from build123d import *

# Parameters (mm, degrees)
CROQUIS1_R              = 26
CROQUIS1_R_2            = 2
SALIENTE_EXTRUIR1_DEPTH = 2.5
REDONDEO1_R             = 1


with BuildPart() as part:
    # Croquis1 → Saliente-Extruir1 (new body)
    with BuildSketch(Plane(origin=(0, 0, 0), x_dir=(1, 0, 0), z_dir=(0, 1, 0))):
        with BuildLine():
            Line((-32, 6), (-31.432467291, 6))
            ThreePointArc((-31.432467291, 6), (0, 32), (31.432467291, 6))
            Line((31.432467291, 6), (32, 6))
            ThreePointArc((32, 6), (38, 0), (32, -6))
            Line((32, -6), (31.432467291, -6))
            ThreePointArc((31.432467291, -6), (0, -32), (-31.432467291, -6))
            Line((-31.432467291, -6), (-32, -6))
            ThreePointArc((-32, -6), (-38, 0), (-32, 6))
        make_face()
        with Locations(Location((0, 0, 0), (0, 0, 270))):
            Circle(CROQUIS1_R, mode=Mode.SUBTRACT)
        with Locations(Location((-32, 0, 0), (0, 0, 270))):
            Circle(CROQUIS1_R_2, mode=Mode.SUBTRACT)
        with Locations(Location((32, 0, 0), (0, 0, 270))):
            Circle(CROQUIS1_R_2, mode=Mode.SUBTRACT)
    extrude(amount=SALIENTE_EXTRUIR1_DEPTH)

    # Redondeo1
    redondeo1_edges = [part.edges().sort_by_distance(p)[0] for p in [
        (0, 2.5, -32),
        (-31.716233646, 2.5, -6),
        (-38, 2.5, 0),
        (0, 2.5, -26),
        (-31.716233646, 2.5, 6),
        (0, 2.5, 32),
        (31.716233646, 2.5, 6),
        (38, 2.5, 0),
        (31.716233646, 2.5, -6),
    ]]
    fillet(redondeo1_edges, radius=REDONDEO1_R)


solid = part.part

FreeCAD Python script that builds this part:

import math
import FreeCAD as App
import Part
import Sketcher

V = App.Vector


def edges_at(feature, points):
    """Names of the edges that pass closest to the given points."""
    edges = feature.Shape.Edges
    near = lambda p: min(range(len(edges)), key=lambda i: edges[i].distToShape(Part.Vertex(*p))[0])
    return sorted({f"Edge{near(p) + 1}" for p in points})

doc = App.newDocument("Part")
body = doc.addObject("PartDesign::Body", "Body")

sketch1 = body.newObject("Sketcher::SketchObject", "Sketch")
sketch1.AttachmentSupport = (doc.getObject("XZ_Plane"), [""])
sketch1.MapMode = "FlatFace"
sketch1.addGeometry(Part.LineSegment(V(-31.4, -6, 0), V(-32, -6, 0)), False)
sketch1.addGeometry(Part.ArcOfCircle(Part.Circle(V(-32, 0, 0), V(0, 0, 1), 6), math.radians(90), math.radians(270)), False)
sketch1.addGeometry(Part.LineSegment(V(-32, 6, 0), V(-31.4, 6, 0)), False)
sketch1.addGeometry(Part.ArcOfCircle(Part.Circle(V(0, 0, 0), V(0, 0, 1), 32), math.radians(11), math.radians(169)), False)
sketch1.addGeometry(Part.LineSegment(V(31.4, 6, 0), V(32, 6, 0)), False)
sketch1.addGeometry(Part.ArcOfCircle(Part.Circle(V(32, 0, 0), V(0, 0, 1), 6), math.radians(-90), math.radians(90)), False)
sketch1.addGeometry(Part.LineSegment(V(32, -6, 0), V(31.4, -6, 0)), False)
sketch1.addGeometry(Part.ArcOfCircle(Part.Circle(V(0, 0, 0), V(0, 0, 1), 32), math.radians(-169), math.radians(-11)), False)
sketch1.addGeometry(Part.Circle(V(32, 0, 0), V(0, 0, 1), 2), False)
sketch1.addGeometry(Part.Circle(V(0, 0, 0), V(0, 0, 1), 26), False)
sketch1.addGeometry(Part.Circle(V(-32, 0, 0), V(0, 0, 1), 2), False)
sketch1.addConstraint(Sketcher.Constraint("Tangent", 0, 2, 1, 2))
sketch1.addConstraint(Sketcher.Constraint("Tangent", 1, 1, 2, 1))
sketch1.addConstraint(Sketcher.Constraint("Coincident", 2, 2, 3, 2))
sketch1.addConstraint(Sketcher.Constraint("Coincident", 3, 1, 4, 1))
sketch1.addConstraint(Sketcher.Constraint("Tangent", 4, 2, 5, 2))
sketch1.addConstraint(Sketcher.Constraint("Tangent", 5, 1, 6, 1))
sketch1.addConstraint(Sketcher.Constraint("Coincident", 6, 2, 7, 2))
sketch1.addConstraint(Sketcher.Constraint("Coincident", 7, 1, 0, 1))
sketch1.addConstraint(Sketcher.Constraint("Horizontal", 0))
sketch1.addConstraint(Sketcher.Constraint("Horizontal", 2))
sketch1.addConstraint(Sketcher.Constraint("Horizontal", 4))
sketch1.addConstraint(Sketcher.Constraint("Horizontal", 6))
sketch1.addConstraint(Sketcher.Constraint("Coincident", 3, 3, -1, 1))
sketch1.addConstraint(Sketcher.Constraint("Coincident", 7, 3, -1, 1))
sketch1.addConstraint(Sketcher.Constraint("Coincident", 9, 3, -1, 1))
sketch1.addConstraint(Sketcher.Constraint("Coincident", 8, 3, 5, 3))
sketch1.addConstraint(Sketcher.Constraint("Coincident", 10, 3, 1, 3))
sketch1.addConstraint(Sketcher.Constraint("Equal", 1, 5))
sketch1.addConstraint(Sketcher.Constraint("Equal", 3, 7))
sketch1.addConstraint(Sketcher.Constraint("Equal", 8, 10))
sketch1.addConstraint(Sketcher.Constraint("Symmetric", 1, 3, 5, 3, -1, 1))
sketch1.addConstraint(Sketcher.Constraint("PointOnObject", 1, 3, -1))
sketch1.addConstraint(Sketcher.Constraint("Diameter", 8, 4.0))
sketch1.addConstraint(Sketcher.Constraint("Diameter", 9, 52.0))
sketch1.addConstraint(Sketcher.Constraint("Radius", 1, 6.0))
sketch1.addConstraint(Sketcher.Constraint("Radius", 3, 32.0))
sketch1.addConstraint(Sketcher.Constraint("DistanceX", 1, 3, -1, 1, 32.0))
pad1 = body.newObject("PartDesign::Pad", "Pad")
pad1.Profile = sketch1
pad1.Length = 2.5
pad1.Reversed = True
doc.recompute()

fillet = body.newObject("PartDesign::Fillet", "Fillet")
fillet.Base = (pad1, edges_at(pad1, [
    (0, 2.5, -32),
    (-31.716, 2.5, -6),
    (-38, 2.5, 0),
    (0, 2.5, -26),
    (-31.716, 2.5, 6),
    (0, 2.5, 32),
    (31.716, 2.5, 6),
    (38, 2.5, 0),
    (31.716, 2.5, -6),
]))
fillet.Radius = 1

doc.recompute()
